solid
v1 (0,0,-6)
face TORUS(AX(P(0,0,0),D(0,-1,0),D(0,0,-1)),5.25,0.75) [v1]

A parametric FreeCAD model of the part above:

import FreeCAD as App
import Part
import Sketcher
Q = App.Units.Quantity

doc = App.newDocument("Part")
body = doc.addObject("PartDesign::Body", "Body")

# Sketch on XY plane
sketch1 = doc.addObject("Sketcher::SketchObject", "Sketch")
body.addObject(sketch1)
sketch1.AttachmentSupport = (doc.XY_Plane, [""])
sketch1.MapMode = "FlatFace"
sketch1.addGeometry(Part.Circle(App.Vector(5.2, 0, 0), App.Vector(0, 0, 1), 0.8), False)
sketch1.addConstraint([
    Sketcher.Constraint("PointOnObject", 0, 3, -1),
    Sketcher.Constraint("Diameter", 0, Q("1.5 mm")),
    Sketcher.Constraint("DistanceX", -1, 1, 0, 3, Q("5.25 mm")),
])
revolution = doc.addObject("PartDesign::Revolution", "Revolution")
body.addObject(revolution)
revolution.Profile = sketch1
revolution.ReferenceAxis = (sketch1, ["V_Axis"])
revolution.Angle = 360

doc.recompute()
